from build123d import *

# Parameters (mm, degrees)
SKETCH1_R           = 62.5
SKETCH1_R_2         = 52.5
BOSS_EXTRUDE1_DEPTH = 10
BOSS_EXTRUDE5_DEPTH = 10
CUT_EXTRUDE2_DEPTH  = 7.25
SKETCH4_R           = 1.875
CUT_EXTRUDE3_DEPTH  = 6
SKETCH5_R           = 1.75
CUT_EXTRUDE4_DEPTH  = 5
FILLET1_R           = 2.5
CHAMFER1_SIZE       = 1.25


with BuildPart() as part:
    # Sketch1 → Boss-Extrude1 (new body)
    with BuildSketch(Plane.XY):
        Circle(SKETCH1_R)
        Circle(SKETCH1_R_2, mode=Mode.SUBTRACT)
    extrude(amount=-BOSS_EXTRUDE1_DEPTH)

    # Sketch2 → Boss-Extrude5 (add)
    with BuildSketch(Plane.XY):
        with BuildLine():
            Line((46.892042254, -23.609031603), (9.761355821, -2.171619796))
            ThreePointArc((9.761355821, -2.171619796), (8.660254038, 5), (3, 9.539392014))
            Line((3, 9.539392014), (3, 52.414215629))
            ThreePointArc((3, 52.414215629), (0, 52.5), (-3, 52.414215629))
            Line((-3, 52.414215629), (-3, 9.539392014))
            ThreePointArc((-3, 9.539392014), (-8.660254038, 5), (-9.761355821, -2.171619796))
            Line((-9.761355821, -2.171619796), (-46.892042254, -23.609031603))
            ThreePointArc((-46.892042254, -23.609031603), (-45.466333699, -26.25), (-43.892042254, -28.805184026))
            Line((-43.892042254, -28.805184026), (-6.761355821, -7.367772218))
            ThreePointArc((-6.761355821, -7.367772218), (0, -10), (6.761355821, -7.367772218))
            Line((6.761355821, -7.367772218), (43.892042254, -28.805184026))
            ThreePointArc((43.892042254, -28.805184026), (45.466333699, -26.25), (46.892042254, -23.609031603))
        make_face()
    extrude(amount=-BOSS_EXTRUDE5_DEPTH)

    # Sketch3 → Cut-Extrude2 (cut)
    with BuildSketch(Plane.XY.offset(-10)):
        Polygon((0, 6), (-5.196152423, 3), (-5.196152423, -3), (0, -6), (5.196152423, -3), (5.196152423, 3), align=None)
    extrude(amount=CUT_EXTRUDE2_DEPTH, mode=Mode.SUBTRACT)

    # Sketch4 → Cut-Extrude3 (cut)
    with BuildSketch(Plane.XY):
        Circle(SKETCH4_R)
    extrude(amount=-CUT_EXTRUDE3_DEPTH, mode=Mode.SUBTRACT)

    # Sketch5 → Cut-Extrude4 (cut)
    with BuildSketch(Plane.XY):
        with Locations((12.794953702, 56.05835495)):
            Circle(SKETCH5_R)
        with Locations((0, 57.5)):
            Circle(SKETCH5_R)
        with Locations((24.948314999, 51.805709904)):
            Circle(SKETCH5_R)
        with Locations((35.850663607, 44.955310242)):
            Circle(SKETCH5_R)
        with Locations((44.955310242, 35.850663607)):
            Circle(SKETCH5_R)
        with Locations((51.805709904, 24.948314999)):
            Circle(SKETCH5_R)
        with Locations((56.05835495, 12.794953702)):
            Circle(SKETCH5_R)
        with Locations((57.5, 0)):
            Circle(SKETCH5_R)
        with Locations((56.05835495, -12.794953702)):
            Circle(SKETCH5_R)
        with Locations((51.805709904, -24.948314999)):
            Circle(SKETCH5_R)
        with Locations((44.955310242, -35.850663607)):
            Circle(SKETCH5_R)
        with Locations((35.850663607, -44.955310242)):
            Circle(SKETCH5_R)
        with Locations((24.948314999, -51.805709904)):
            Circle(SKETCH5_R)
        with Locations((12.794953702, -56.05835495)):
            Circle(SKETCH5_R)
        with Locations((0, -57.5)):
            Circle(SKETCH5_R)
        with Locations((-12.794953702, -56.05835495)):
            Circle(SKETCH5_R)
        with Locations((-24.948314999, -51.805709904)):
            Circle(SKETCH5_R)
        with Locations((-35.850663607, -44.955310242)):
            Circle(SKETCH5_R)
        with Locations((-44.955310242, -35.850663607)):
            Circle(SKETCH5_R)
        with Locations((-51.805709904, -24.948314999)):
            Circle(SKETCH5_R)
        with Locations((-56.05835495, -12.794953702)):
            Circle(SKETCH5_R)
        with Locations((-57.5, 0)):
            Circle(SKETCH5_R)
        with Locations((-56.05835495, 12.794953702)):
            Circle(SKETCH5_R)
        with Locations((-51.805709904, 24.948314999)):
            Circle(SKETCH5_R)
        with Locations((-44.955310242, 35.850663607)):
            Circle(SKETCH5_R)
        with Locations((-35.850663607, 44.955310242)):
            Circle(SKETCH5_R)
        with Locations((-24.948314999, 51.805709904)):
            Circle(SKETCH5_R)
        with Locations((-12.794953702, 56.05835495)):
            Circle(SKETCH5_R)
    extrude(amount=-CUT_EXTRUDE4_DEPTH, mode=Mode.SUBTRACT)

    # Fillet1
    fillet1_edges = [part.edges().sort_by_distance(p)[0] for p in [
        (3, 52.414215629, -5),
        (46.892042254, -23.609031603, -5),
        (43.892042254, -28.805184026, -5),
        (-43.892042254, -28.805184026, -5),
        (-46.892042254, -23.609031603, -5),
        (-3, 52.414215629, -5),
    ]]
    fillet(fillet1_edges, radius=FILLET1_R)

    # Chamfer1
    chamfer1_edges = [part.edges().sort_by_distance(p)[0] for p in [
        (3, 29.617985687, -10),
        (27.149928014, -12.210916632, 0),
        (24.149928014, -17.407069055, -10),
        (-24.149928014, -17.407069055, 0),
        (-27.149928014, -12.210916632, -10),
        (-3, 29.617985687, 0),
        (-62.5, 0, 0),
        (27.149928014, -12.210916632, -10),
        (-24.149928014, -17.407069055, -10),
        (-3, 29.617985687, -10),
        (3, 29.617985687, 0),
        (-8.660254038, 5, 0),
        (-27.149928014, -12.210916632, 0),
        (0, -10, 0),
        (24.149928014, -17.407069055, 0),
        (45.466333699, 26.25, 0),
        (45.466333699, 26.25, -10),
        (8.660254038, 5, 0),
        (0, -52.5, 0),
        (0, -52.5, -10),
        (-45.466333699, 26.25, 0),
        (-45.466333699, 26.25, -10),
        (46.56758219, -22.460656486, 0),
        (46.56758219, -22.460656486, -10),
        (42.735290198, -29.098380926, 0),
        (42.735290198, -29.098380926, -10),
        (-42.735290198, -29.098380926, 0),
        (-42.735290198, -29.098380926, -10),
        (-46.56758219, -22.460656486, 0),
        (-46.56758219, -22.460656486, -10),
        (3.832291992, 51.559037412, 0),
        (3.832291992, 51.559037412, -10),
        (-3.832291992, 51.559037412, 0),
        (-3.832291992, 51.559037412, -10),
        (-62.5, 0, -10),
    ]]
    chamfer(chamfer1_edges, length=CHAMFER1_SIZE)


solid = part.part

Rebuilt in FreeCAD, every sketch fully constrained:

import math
import FreeCAD as App
import Part
import Sketcher
from FreeCAD import Vector
Q = App.Units.Quantity


def edges_at(feature, points):
    """Names of the edges that pass closest to the given points."""
    edges = feature.Shape.Edges
    near = lambda p: min(range(len(edges)), key=lambda i: edges[i].distToShape(Part.Vertex(*p))[0])
    return sorted({f"Edge{near(p) + 1}" for p in points})


def add_polygon(sketch, points):
    """Adds a closed chain of lines whose ends are joined by coincident constraints."""
    first, n = sketch.GeometryCount, len(points)
    for a, b in zip(points, points[1:] + points[:1]):
        sketch.addGeometry(Part.LineSegment(App.Vector(*a, 0), App.Vector(*b, 0)), False)
    for i in range(n):
        sketch.addConstraint(Sketcher.Constraint("Coincident", first + i, 2, first + (i + 1) % n, 1))

doc = App.newDocument("Part")
body = doc.addObject("PartDesign::Body", "Body")

# Sketch on XY plane
sketch1 = doc.addObject("Sketcher::SketchObject", "Sketch")
body.addObject(sketch1)
sketch1.AttachmentSupport = (doc.XY_Plane, [""])
sketch1.MapMode = "FlatFace"
sketch1.addGeometry([
    Part.Circle(Vector(0, 0, 0), Vector(0, 0, 1), 62),
    Part.Circle(Vector(0, 0, 0), Vector(0, 0, 1), 52),
], False)
sketch1.addConstraint([
    Sketcher.Constraint("Coincident", 0, 3, -1, 1),
    Sketcher.Constraint("Coincident", 1, 3, -1, 1),
    Sketcher.Constraint("Diameter", 0, Q("125 mm")),
    Sketcher.Constraint("Diameter", 1, Q("105 mm")),
])
pad1 = doc.addObject("PartDesign::Pad", "Pad")
body.addObject(pad1)
pad1.Profile = sketch1
pad1.Length = 10
pad1.Reversed = True

# Sketch on XY plane
sketch2 = doc.addObject("Sketcher::SketchObject", "Sketch001")
body.addObject(sketch2)
sketch2.AttachmentSupport = (doc.XY_Plane, [""])
sketch2.MapMode = "FlatFace"
sketch2.addGeometry([
    Part.LineSegment(Vector(47, -24, 0), Vector(10, -2, 0)),  # 0
    Part.ArcOfCircle(Part.Circle(Vector(0, 0, 0), Vector(0, 0, 1), 10), math.radians(-13), math.radians(73)),  # 1
    Part.LineSegment(Vector(3, 10, 0), Vector(3, 52, 0)),  # 2
    Part.ArcOfCircle(Part.Circle(Vector(0, 0, 0), Vector(0, 0, 1), 53), math.radians(86.72), math.radians(93.28)),  # 3
    Part.LineSegment(Vector(-3, 52, 0), Vector(-3, 10, 0)),  # 4
    Part.ArcOfCircle(Part.Circle(Vector(0, 0, 0), Vector(0, 0, 1), 10), math.radians(107), math.radians(193)),  # 5
    Part.LineSegment(Vector(-10, -2, 0), Vector(-47, -24, 0)),  # 6
    Part.ArcOfCircle(Part.Circle(Vector(0, 0, 0), Vector(0, 0, 1), 52), math.radians(-153.28), math.radians(-146.72)),  # 7
    Part.LineSegment(Vector(-44, -29, 0), Vector(-7, -7, 0)),  # 8
    Part.ArcOfCircle(Part.Circle(Vector(0, 0, 0), Vector(0, 0, 1), 10), math.radians(-133), math.radians(-47)),  # 9
    Part.LineSegment(Vector(7, -7, 0), Vector(44, -29, 0)),  # 10
    Part.ArcOfCircle(Part.Circle(Vector(0, 0, 0), Vector(0, 0, 1), 52), math.radians(-33.28), math.radians(-26.72)),  # 11
], False)
sketch2.addConstraint([
    Sketcher.Constraint("Coincident", 0, 2, 1, 1),
    Sketcher.Constraint("Coincident", 1, 2, 2, 1),
    Sketcher.Constraint("Coincident", 2, 2, 3, 1),
    Sketcher.Constraint("Coincident", 3, 2, 4, 1),
    Sketcher.Constraint("Coincident", 4, 2, 5, 1),
    Sketcher.Constraint("Coincident", 5, 2, 6, 1),
    Sketcher.Constraint("Coincident", 6, 2, 7, 1),
    Sketcher.Constraint("Coincident", 7, 2, 8, 1),
    Sketcher.Constraint("Coincident", 8, 2, 9, 1),
    Sketcher.Constraint("Coincident", 9, 2, 10, 1),
    Sketcher.Constraint("Coincident", 10, 2, 11, 1),
    Sketcher.Constraint("Coincident", 11, 2, 0, 1),
    Sketcher.Constraint("Vertical", 2),
    Sketcher.Constraint("Vertical", 4),
    Sketcher.Constraint("Coincident", 1, 3, -1, 1),
    Sketcher.Constraint("Coincident", 3, 3, -1, 1),
    Sketcher.Constraint("Coincident", 5, 3, -1, 1),
    Sketcher.Constraint("Coincident", 7, 3, -1, 1),
    Sketcher.Constraint("Coincident", 9, 3, -1, 1),
    Sketcher.Constraint("Coincident", 11, 3, -1, 1),
    Sketcher.Constraint("Equal", 1, 5),
    Sketcher.Constraint("Equal", 3, 7),
    Sketcher.Constraint("Equal", 5, 9),
    Sketcher.Constraint("Equal", 7, 11),
    Sketcher.Constraint("Parallel", 6, 8),
    Sketcher.Constraint("Parallel", 0, 10),
    Sketcher.Constraint("Horizontal", 2, 2, 3, 2),
    Sketcher.Constraint("Horizontal", 0, 2, 5, 2),
    Sketcher.Constraint("Horizontal", 8, 2, 9, 2),
    Sketcher.Constraint("Horizontal", 7, 2, 10, 2),
    Sketcher.Constraint("Equal", 6, 8),
    Sketcher.Constraint("Radius", 1, Q("10 mm")),
    Sketcher.Constraint("Radius", 3, Q("52.5 mm")),
    Sketcher.Constraint("Angle", 0, Q("150 deg")),
    Sketcher.Constraint("DistanceX", -1, 1, 1, 2, Q("3 mm")),
    Sketcher.Constraint("DistanceX", 6, 2, 7, 2, Q("3 mm")),
])
pad2 = doc.addObject("PartDesign::Pad", "Pad001")
body.addObject(pad2)
pad2.Profile = sketch2
pad2.Length = 10
pad2.Reversed = True

# Sketch on XY plane
sketch3 = doc.addObject("Sketcher::SketchObject", "Sketch002")
body.addObject(sketch3)
sketch3.AttachmentSupport = (doc.XY_Plane, [""])
sketch3.MapMode = "FlatFace"
sketch3.AttachmentOffset = App.Placement(Vector(0, 0, -10), App.Rotation())
add_polygon(sketch3, [(0, 6), (-5, 3), (-5, -3), (0, -6), (5, -3), (5, 3)])  # lines 0-5
sketch3.addConstraint([
    Sketcher.Constraint("Vertical", 1),
    Sketcher.Constraint("Vertical", 4),
    Sketcher.Constraint("Symmetric", 0, 2, 3, 2, -1, 1),
    Sketcher.Constraint("Symmetric", 2, 2, 5, 2, -1, 1),
    Sketcher.Constraint("PointOnObject", 2, 2, -2),
    Sketcher.Constraint("Parallel", 2, 5),
    Sketcher.Constraint("Horizontal", 1, 2, 3, 2),
    Sketcher.Constraint("DistanceY", 1, 2, 1, 1, Q("6 mm")),
    Sketcher.Constraint("Angle", 0, Q("-150 deg")),
    Sketcher.Constraint("Distance", 0, Q("6 mm")),
])
pocket1 = doc.addObject("PartDesign::Pocket", "Pocket")
body.addObject(pocket1)
pocket1.Profile = sketch3
pocket1.Length = 7.25
pocket1.Reversed = True

# Sketch on XY plane
sketch4 = doc.addObject("Sketcher::SketchObject", "Sketch003")
body.addObject(sketch4)
sketch4.AttachmentSupport = (doc.XY_Plane, [""])
sketch4.MapMode = "FlatFace"
sketch4.addGeometry(Part.Circle(Vector(0, 0, 0), Vector(0, 0, 1), 1.9), False)
sketch4.addConstraint([
    Sketcher.Constraint("Coincident", 0, 3, -1, 1),
    Sketcher.Constraint("Diameter", 0, Q("3.75 mm")),
])
pocket2 = doc.addObject("PartDesign::Pocket", "Pocket001")
body.addObject(pocket2)
pocket2.Profile = sketch4
pocket2.Length = 6

# Sketch on XY plane
sketch5 = doc.addObject("Sketcher::SketchObject", "Sketch004")
body.addObject(sketch5)
sketch5.AttachmentSupport = (doc.XY_Plane, [""])
sketch5.MapMode = "FlatFace"
sketch5.addGeometry([
    Part.Circle(Vector(12.8, 56.1, 0), Vector(0, 0, 1), 1.8),  # 0
    Part.Circle(Vector(0, 57.5, 0), Vector(0, 0, 1), 1.8),  # 1
    Part.Circle(Vector(24.9, 51.8, 0), Vector(0, 0, 1), 1.8),  # 2
    Part.Circle(Vector(35.9, 45, 0), Vector(0, 0, 1), 1.8),  # 3
    Part.Circle(Vector(45, 35.9, 0), Vector(0, 0, 1), 1.8),  # 4
    Part.Circle(Vector(51.8, 24.9, 0), Vector(0, 0, 1), 1.8),  # 5
    Part.Circle(Vector(56.1, 12.8, 0), Vector(0, 0, 1), 1.8),  # 6
    Part.Circle(Vector(57.5, 0, 0), Vector(0, 0, 1), 1.8),  # 7
    Part.Circle(Vector(56.1, -12.8, 0), Vector(0, 0, 1), 1.8),  # 8
    Part.Circle(Vector(51.8, -24.9, 0), Vector(0, 0, 1), 1.8),  # 9
    Part.Circle(Vector(45, -35.9, 0), Vector(0, 0, 1), 1.8),  # 10
    Part.Circle(Vector(35.9, -45, 0), Vector(0, 0, 1), 1.8),  # 11
    Part.Circle(Vector(24.9, -51.8, 0), Vector(0, 0, 1), 1.8),  # 12
    Part.Circle(Vector(12.8, -56.1, 0), Vector(0, 0, 1), 1.8),  # 13
    Part.Circle(Vector(0, -57.5, 0), Vector(0, 0, 1), 1.8),  # 14
    Part.Circle(Vector(-12.8, -56.1, 0), Vector(0, 0, 1), 1.8),  # 15
    Part.Circle(Vector(-24.9, -51.8, 0), Vector(0, 0, 1), 1.8),  # 16
    Part.Circle(Vector(-35.9, -45, 0), Vector(0, 0, 1), 1.8),  # 17
    Part.Circle(Vector(-45, -35.9, 0), Vector(0, 0, 1), 1.8),  # 18
    Part.Circle(Vector(-51.8, -24.9, 0), Vector(0, 0, 1), 1.8),  # 19
    Part.Circle(Vector(-56.1, -12.8, 0), Vector(0, 0, 1), 1.8),  # 20
    Part.Circle(Vector(-57.5, 0, 0), Vector(0, 0, 1), 1.8),  # 21
    Part.Circle(Vector(-56.1, 12.8, 0), Vector(0, 0, 1), 1.8),  # 22
    Part.Circle(Vector(-51.8, 24.9, 0), Vector(0, 0, 1), 1.8),  # 23
    Part.Circle(Vector(-45, 35.9, 0), Vector(0, 0, 1), 1.8),  # 24
    Part.Circle(Vector(-35.9, 45, 0), Vector(0, 0, 1), 1.8),  # 25
    Part.Circle(Vector(-24.9, 51.8, 0), Vector(0, 0, 1), 1.8),  # 26
    Part.Circle(Vector(-12.8, 56.1, 0), Vector(0, 0, 1), 1.8),  # 27
], False)
sketch5.addConstraint([
    Sketcher.Constraint("Equal", 0, 1),
    Sketcher.Constraint("Equal", 1, 2),
    Sketcher.Constraint("Equal", 2, 3),
    Sketcher.Constraint("Equal", 3, 4),
    Sketcher.Constraint("Equal", 4, 5),
    Sketcher.Constraint("Equal", 5, 6),
    Sketcher.Constraint("Equal", 6, 7),
    Sketcher.Constraint("Equal", 7, 8),
    Sketcher.Constraint("Equal", 8, 9),
    Sketcher.Constraint("Equal", 9, 10),
    Sketcher.Constraint("Equal", 10, 11),
    Sketcher.Constraint("Equal", 11, 12),
    Sketcher.Constraint("Equal", 12, 13),
    Sketcher.Constraint("Equal", 13, 14),
    Sketcher.Constraint("Equal", 14, 15),
    Sketcher.Constraint("Equal", 15, 16),
    Sketcher.Constraint("Equal", 16, 17),
    Sketcher.Constraint("Equal", 17, 18),
    Sketcher.Constraint("Equal", 18, 19),
    Sketcher.Constraint("Equal", 19, 20),
    Sketcher.Constraint("Equal", 20, 21),
    Sketcher.Constraint("Equal", 21, 22),
    Sketcher.Constraint("Equal", 22, 23),
    Sketcher.Constraint("Equal", 23, 24),
    Sketcher.Constraint("Equal", 24, 25),
    Sketcher.Constraint("Equal", 25, 26),
    Sketcher.Constraint("Equal", 26, 27),
    Sketcher.Constraint("Symmetric", 1, 3, 14, 3, -1, 1),
    Sketcher.Constraint("Symmetric", 0, 3, 15, 3, -1, 1),
    Sketcher.Constraint("Symmetric", 2, 3, 16, 3, -1, 1),
    Sketcher.Constraint("Symmetric", 3, 3, 17, 3, -1, 1),
    Sketcher.Constraint("Symmetric", 4, 3, 18, 3, -1, 1),
    Sketcher.Constraint("Symmetric", 5, 3, 19, 3, -1, 1),
    Sketcher.Constraint("Symmetric", 6, 3, 20, 3, -1, 1),
    Sketcher.Constraint("Symmetric", 7, 3, 21, 3, -1, 1),
    Sketcher.Constraint("Symmetric", 8, 3, 22, 3, -1, 1),
    Sketcher.Constraint("Symmetric", 9, 3, 23, 3, -1, 1),
    Sketcher.Constraint("Symmetric", 10, 3, 24, 3, -1, 1),
    Sketcher.Constraint("Symmetric", 11, 3, 25, 3, -1, 1),
    Sketcher.Constraint("Symmetric", 12, 3, 26, 3, -1, 1),
    Sketcher.Constraint("Symmetric", 13, 3, 27, 3, -1, 1),
    Sketcher.Constraint("Symmetric", 13, 3, 15, 3, -2),
    Sketcher.Constraint("Symmetric", 12, 3, 16, 3, -2),
    Sketcher.Constraint("Symmetric", 11, 3, 17, 3, -2),
    Sketcher.Constraint("Symmetric", 10, 3, 18, 3, -2),
    Sketcher.Constraint("Symmetric", 9, 3, 19, 3, -2),
    Sketcher.Constraint("Symmetric", 8, 3, 20, 3, -2),
    Sketcher.Constraint("PointOnObject", 1, 3, -2),
    Sketcher.Constraint("PointOnObject", 7, 3, -1),
    Sketcher.Constraint("Diameter", 0, Q("3.5 mm")),
    Sketcher.Constraint("DistanceY", -1, 1, 1, 3, Q("57.5 mm")),
    Sketcher.Constraint("DistanceX", -1, 1, 7, 3, Q("57.5 mm")),
    Sketcher.Constraint("DistanceY", 3, 3, 2, 3, Q("6.8504 mm")),
    Sketcher.Constraint("DistanceX", 4, 3, 5, 3, Q("6.8504 mm")),
    Sketcher.Constraint("DistanceX", 0, 3, 6, 3, Q("43.263401 mm")),
    Sketcher.Constraint("DistanceY", 6, 3, 0, 3, Q("43.263401 mm")),
    Sketcher.Constraint("DistanceY", -1, 1, 2, 3, Q("51.80571 mm")),
    Sketcher.Constraint("DistanceX", -1, 1, 4, 3, Q("44.95531 mm")),
    Sketcher.Constraint("DistanceX", 0, 3, 2, 3, Q("12.153361 mm")),
    Sketcher.Constraint("DistanceX", 2, 3, 3, 3, Q("10.902349 mm")),
    Sketcher.Constraint("DistanceY", 4, 3, 0, 3, Q("20.207691 mm")),
    Sketcher.Constraint("DistanceY", 5, 3, 4, 3, Q("10.902349 mm")),
    Sketcher.Constraint("DistanceY", 8, 3, 5, 3, Q("37.743269 mm")),
    Sketcher.Constraint("DistanceX", 15, 3, 12, 3, Q("37.743269 mm")),
])
pocket3 = doc.addObject("PartDesign::Pocket", "Pocket002")
body.addObject(pocket3)
pocket3.Profile = sketch5
pocket3.Length = 5
doc.recompute()

fillet = doc.addObject("PartDesign::Fillet", "Fillet")
body.addObject(fillet)
fillet.Base = (pocket3, edges_at(pocket3, [
    (3, 52.414, -5),
    (46.892, -23.609, -5),
    (43.892, -28.805, -5),
    (-43.892, -28.805, -5),
    (-46.892, -23.609, -5),
    (-3, 52.414, -5),
]))
fillet.Radius = 2.5
doc.recompute()

chamfer = doc.addObject("PartDesign::Chamfer", "Chamfer")
body.addObject(chamfer)
chamfer.Base = (fillet, edges_at(fillet, [
    (3, 29.618, -10),
    (27.15, -12.211, 0),
    (24.15, -17.407, -10),
    (-24.15, -17.407, 0),
    (-27.15, -12.211, -10),
    (-3, 29.618, 0),
    (-62.5, 0, 0),
    (27.15, -12.211, -10),
    (-24.15, -17.407, -10),
    (-3, 29.618, -10),
    (3, 29.618, 0),
    (-8.66, 5, 0),
    (-27.15, -12.211, 0),
    (0, -10, 0),
    (24.15, -17.407, 0),
    (45.466, 26.25, 0),
    (45.466, 26.25, -10),
    (8.66, 5, 0),
    (0, -52.5, 0),
    (0, -52.5, -10),
    (-45.466, 26.25, 0),
    (-45.466, 26.25, -10),
    (46.568, -22.461, 0),
    (46.568, -22.461, -10),
    (42.735, -29.098, 0),
    (42.735, -29.098, -10),
    (-42.735, -29.098, 0),
    (-42.735, -29.098, -10),
    (-46.568, -22.461, 0),
    (-46.568, -22.461, -10),
    (3.832, 51.559, 0),
    (3.832, 51.559, -10),
    (-3.832, 51.559, 0),
    (-3.832, 51.559, -10),
    (-62.5, 0, -10),
]))
chamfer.Size = 1.25

doc.recompute()
